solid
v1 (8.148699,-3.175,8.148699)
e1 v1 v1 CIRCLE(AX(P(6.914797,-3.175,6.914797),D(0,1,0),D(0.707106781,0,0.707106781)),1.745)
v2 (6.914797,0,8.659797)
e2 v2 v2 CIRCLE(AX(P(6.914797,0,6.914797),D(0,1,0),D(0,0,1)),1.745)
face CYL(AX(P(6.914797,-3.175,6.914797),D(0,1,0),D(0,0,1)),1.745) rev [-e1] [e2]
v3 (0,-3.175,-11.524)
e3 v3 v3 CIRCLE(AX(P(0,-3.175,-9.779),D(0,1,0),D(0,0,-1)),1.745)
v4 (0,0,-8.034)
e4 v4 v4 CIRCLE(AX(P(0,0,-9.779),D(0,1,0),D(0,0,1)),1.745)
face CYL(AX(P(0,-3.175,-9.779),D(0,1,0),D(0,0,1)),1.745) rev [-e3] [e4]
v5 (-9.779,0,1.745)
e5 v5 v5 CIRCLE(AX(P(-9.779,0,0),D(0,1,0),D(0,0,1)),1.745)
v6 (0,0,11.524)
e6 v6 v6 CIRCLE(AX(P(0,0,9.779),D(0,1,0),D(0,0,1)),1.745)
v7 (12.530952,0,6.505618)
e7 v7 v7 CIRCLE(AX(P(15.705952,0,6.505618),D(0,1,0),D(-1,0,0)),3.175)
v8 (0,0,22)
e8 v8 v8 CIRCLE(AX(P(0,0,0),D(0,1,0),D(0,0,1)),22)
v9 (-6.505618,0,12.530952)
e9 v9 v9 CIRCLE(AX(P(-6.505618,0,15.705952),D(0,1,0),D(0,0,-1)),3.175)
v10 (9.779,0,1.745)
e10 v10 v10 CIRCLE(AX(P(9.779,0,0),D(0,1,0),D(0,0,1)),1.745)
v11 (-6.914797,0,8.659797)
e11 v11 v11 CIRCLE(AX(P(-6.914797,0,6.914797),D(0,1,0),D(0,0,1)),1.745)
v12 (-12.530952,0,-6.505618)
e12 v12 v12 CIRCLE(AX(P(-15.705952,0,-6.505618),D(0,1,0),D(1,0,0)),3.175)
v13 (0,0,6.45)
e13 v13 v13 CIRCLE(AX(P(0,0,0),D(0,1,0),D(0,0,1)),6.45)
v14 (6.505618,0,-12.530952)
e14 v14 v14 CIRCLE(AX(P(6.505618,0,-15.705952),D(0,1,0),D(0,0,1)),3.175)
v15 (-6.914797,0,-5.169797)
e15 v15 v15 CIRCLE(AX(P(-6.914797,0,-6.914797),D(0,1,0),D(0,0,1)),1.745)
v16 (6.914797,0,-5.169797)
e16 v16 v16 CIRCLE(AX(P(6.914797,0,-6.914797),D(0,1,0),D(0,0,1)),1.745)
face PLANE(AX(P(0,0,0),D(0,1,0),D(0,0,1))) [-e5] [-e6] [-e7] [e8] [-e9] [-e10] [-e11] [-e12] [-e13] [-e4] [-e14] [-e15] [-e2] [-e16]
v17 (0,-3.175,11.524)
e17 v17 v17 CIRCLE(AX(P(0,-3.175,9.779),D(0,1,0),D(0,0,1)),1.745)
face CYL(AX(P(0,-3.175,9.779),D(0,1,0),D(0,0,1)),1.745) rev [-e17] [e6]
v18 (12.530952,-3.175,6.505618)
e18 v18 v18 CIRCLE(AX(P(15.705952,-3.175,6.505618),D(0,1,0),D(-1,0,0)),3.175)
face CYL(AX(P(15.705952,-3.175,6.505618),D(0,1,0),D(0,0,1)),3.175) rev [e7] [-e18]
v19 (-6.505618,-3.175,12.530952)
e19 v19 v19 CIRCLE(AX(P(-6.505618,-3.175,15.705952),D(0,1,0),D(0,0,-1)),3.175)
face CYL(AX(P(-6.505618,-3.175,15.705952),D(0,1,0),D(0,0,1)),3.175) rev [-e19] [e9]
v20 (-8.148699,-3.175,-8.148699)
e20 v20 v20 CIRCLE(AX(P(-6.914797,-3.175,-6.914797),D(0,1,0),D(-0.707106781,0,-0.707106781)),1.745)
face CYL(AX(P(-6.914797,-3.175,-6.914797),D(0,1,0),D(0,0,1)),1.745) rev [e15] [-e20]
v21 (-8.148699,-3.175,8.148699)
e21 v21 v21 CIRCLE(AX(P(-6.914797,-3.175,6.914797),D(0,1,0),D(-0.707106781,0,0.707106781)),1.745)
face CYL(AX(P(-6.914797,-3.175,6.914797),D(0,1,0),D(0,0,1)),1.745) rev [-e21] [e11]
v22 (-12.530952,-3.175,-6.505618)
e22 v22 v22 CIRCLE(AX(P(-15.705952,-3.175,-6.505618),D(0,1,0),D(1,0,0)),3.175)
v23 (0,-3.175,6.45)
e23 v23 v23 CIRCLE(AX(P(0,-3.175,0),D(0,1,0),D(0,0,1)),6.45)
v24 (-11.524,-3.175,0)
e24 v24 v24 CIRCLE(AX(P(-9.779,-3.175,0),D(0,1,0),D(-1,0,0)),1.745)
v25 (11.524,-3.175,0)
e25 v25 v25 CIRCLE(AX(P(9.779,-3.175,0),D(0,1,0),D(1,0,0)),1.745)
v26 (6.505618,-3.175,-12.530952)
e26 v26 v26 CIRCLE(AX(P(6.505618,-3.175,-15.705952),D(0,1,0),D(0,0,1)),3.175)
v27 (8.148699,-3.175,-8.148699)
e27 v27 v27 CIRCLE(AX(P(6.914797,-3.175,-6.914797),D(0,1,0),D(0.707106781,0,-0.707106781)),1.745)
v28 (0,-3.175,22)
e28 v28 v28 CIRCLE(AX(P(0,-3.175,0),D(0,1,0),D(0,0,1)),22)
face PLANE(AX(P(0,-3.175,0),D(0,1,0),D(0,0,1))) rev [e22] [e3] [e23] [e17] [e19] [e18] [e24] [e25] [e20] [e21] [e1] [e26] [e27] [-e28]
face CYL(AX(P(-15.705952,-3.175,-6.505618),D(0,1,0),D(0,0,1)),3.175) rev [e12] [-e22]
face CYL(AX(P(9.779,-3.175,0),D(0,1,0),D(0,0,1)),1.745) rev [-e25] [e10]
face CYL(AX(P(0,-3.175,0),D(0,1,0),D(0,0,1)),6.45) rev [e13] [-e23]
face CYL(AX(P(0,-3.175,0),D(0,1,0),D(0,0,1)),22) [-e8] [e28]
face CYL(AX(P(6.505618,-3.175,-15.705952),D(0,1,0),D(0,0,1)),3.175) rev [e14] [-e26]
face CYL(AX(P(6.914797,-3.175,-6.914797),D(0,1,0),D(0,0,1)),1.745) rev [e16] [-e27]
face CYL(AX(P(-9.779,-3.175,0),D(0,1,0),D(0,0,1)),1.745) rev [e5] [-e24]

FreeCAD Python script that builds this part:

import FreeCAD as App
import Part
import Sketcher

V = App.Vector

doc = App.newDocument("Part")
params = doc.addObject("Spreadsheet::Sheet", "Params")
for row, (alias, value) in enumerate([
    ("sketch1_diameter", "44 mm"),
    ("pad1_length", "3.175 mm"),
    ("sketch2_diameter", "3.49 mm"),
    ("pocket1_length", "64.548561 mm"),
    ("sketch3_diameter", "12.9 mm"),
    ("sketch4_diameter", "6.35 mm"),
], start=1):
    params.set(f"A{row}", alias)
    params.set(f"B{row}", "=" + value)
    params.setAlias(f"B{row}", alias)

body = doc.addObject("PartDesign::Body", "Body")

# Sketch on XZ plane
sketch1 = body.newObject("Sketcher::SketchObject", "Sketch")
sketch1.AttachmentSupport = (doc.getObject("XZ_Plane"), [""])
sketch1.MapMode = "FlatFace"
sketch1.addGeometry(Part.Circle(V(0, 0, 0), V(0, 0, 1), 22), False)
sketch1.addConstraint([
    Sketcher.Constraint("Coincident", 0, 3, -1, 1),
    Sketcher.Constraint("Diameter", 0, 44.0),
])
sketch1.setExpression("Constraints[1]", "Params.sketch1_diameter")
pad1 = body.newObject("PartDesign::Pad", "Pad")
pad1.Profile = sketch1
pad1.setExpression("Length", "Params.pad1_length")

# Sketch on XZ plane
sketch2 = body.newObject("Sketcher::SketchObject", "Sketch001")
sketch2.AttachmentSupport = (doc.getObject("XZ_Plane"), [""])
sketch2.MapMode = "FlatFace"
sketch2.addGeometry(Part.Circle(V(0, 9.8, 0), V(0, 0, 1), 1.7), False)
sketch2.addConstraint([
    Sketcher.Constraint("PointOnObject", 0, 3, -2),
    Sketcher.Constraint("Diameter", 0, 3.49),
    Sketcher.Constraint("DistanceY", -1, 1, 0, 3, 9.779),
])
sketch2.setExpression("Constraints[1]", "Params.sketch2_diameter")
pocket1 = body.newObject("PartDesign::Pocket", "Pocket")
pocket1.Profile = sketch2
pocket1.setExpression("Length", "Params.pocket1_length")
pocket1.Midplane = True

# Sketch on XZ plane
sketch3 = body.newObject("Sketcher::SketchObject", "Sketch002")
sketch3.AttachmentSupport = (doc.getObject("XZ_Plane"), [""])
sketch3.MapMode = "FlatFace"
sketch3.addGeometry(Part.Circle(V(0, 0, 0), V(0, 0, 1), 6), False)
sketch3.addConstraint([
    Sketcher.Constraint("Coincident", 0, 3, -1, 1),
    Sketcher.Constraint("Diameter", 0, 12.9),
])
sketch3.setExpression("Constraints[1]", "Params.sketch3_diameter")
pocket2 = body.newObject("PartDesign::Pocket", "Pocket001")
pocket2.Profile = sketch3
pocket2.Type = "ThroughAll"
pocket2.Reversed = True
doc.recompute()

polarpattern = body.newObject("PartDesign::PolarPattern", "PolarPattern")
polarpattern.Originals = [pocket1]
polarpattern.Axis = (doc.getObject("Y_Axis"), [""])
polarpattern.Angle = 360
polarpattern.Occurrences = 8
body.Tip = polarpattern

# Sketch on XZ plane
sketch4 = body.newObject("Sketcher::SketchObject", "Sketch003")
sketch4.AttachmentSupport = (doc.getObject("XZ_Plane"), [""])
sketch4.MapMode = "FlatFace"
sketch4.addGeometry(Part.Circle(V(6.5, -15.7, 0), V(0, 0, 1), 3.2), False)
sketch4.addConstraint([
    Sketcher.Constraint("Diameter", 0, 6.35),
    Sketcher.Constraint("DistanceX", -1, 1, 0, 3, 6.505618),
    Sketcher.Constraint("DistanceY", 0, 3, -1, 1, 15.705952),
])
sketch4.setExpression("Constraints[0]", "Params.sketch4_diameter")
pocket3 = body.newObject("PartDesign::Pocket", "Pocket002")
pocket3.Profile = sketch4
pocket3.Type = "ThroughAll"
pocket3.Reversed = True
doc.recompute()

polarpattern2 = body.newObject("PartDesign::PolarPattern", "PolarPattern001")
polarpattern2.Originals = [pocket3]
polarpattern2.Axis = (doc.getObject("Y_Axis"), [""])
polarpattern2.Angle = 360
polarpattern2.Occurrences = 4
body.Tip = polarpattern2

doc.recompute()
